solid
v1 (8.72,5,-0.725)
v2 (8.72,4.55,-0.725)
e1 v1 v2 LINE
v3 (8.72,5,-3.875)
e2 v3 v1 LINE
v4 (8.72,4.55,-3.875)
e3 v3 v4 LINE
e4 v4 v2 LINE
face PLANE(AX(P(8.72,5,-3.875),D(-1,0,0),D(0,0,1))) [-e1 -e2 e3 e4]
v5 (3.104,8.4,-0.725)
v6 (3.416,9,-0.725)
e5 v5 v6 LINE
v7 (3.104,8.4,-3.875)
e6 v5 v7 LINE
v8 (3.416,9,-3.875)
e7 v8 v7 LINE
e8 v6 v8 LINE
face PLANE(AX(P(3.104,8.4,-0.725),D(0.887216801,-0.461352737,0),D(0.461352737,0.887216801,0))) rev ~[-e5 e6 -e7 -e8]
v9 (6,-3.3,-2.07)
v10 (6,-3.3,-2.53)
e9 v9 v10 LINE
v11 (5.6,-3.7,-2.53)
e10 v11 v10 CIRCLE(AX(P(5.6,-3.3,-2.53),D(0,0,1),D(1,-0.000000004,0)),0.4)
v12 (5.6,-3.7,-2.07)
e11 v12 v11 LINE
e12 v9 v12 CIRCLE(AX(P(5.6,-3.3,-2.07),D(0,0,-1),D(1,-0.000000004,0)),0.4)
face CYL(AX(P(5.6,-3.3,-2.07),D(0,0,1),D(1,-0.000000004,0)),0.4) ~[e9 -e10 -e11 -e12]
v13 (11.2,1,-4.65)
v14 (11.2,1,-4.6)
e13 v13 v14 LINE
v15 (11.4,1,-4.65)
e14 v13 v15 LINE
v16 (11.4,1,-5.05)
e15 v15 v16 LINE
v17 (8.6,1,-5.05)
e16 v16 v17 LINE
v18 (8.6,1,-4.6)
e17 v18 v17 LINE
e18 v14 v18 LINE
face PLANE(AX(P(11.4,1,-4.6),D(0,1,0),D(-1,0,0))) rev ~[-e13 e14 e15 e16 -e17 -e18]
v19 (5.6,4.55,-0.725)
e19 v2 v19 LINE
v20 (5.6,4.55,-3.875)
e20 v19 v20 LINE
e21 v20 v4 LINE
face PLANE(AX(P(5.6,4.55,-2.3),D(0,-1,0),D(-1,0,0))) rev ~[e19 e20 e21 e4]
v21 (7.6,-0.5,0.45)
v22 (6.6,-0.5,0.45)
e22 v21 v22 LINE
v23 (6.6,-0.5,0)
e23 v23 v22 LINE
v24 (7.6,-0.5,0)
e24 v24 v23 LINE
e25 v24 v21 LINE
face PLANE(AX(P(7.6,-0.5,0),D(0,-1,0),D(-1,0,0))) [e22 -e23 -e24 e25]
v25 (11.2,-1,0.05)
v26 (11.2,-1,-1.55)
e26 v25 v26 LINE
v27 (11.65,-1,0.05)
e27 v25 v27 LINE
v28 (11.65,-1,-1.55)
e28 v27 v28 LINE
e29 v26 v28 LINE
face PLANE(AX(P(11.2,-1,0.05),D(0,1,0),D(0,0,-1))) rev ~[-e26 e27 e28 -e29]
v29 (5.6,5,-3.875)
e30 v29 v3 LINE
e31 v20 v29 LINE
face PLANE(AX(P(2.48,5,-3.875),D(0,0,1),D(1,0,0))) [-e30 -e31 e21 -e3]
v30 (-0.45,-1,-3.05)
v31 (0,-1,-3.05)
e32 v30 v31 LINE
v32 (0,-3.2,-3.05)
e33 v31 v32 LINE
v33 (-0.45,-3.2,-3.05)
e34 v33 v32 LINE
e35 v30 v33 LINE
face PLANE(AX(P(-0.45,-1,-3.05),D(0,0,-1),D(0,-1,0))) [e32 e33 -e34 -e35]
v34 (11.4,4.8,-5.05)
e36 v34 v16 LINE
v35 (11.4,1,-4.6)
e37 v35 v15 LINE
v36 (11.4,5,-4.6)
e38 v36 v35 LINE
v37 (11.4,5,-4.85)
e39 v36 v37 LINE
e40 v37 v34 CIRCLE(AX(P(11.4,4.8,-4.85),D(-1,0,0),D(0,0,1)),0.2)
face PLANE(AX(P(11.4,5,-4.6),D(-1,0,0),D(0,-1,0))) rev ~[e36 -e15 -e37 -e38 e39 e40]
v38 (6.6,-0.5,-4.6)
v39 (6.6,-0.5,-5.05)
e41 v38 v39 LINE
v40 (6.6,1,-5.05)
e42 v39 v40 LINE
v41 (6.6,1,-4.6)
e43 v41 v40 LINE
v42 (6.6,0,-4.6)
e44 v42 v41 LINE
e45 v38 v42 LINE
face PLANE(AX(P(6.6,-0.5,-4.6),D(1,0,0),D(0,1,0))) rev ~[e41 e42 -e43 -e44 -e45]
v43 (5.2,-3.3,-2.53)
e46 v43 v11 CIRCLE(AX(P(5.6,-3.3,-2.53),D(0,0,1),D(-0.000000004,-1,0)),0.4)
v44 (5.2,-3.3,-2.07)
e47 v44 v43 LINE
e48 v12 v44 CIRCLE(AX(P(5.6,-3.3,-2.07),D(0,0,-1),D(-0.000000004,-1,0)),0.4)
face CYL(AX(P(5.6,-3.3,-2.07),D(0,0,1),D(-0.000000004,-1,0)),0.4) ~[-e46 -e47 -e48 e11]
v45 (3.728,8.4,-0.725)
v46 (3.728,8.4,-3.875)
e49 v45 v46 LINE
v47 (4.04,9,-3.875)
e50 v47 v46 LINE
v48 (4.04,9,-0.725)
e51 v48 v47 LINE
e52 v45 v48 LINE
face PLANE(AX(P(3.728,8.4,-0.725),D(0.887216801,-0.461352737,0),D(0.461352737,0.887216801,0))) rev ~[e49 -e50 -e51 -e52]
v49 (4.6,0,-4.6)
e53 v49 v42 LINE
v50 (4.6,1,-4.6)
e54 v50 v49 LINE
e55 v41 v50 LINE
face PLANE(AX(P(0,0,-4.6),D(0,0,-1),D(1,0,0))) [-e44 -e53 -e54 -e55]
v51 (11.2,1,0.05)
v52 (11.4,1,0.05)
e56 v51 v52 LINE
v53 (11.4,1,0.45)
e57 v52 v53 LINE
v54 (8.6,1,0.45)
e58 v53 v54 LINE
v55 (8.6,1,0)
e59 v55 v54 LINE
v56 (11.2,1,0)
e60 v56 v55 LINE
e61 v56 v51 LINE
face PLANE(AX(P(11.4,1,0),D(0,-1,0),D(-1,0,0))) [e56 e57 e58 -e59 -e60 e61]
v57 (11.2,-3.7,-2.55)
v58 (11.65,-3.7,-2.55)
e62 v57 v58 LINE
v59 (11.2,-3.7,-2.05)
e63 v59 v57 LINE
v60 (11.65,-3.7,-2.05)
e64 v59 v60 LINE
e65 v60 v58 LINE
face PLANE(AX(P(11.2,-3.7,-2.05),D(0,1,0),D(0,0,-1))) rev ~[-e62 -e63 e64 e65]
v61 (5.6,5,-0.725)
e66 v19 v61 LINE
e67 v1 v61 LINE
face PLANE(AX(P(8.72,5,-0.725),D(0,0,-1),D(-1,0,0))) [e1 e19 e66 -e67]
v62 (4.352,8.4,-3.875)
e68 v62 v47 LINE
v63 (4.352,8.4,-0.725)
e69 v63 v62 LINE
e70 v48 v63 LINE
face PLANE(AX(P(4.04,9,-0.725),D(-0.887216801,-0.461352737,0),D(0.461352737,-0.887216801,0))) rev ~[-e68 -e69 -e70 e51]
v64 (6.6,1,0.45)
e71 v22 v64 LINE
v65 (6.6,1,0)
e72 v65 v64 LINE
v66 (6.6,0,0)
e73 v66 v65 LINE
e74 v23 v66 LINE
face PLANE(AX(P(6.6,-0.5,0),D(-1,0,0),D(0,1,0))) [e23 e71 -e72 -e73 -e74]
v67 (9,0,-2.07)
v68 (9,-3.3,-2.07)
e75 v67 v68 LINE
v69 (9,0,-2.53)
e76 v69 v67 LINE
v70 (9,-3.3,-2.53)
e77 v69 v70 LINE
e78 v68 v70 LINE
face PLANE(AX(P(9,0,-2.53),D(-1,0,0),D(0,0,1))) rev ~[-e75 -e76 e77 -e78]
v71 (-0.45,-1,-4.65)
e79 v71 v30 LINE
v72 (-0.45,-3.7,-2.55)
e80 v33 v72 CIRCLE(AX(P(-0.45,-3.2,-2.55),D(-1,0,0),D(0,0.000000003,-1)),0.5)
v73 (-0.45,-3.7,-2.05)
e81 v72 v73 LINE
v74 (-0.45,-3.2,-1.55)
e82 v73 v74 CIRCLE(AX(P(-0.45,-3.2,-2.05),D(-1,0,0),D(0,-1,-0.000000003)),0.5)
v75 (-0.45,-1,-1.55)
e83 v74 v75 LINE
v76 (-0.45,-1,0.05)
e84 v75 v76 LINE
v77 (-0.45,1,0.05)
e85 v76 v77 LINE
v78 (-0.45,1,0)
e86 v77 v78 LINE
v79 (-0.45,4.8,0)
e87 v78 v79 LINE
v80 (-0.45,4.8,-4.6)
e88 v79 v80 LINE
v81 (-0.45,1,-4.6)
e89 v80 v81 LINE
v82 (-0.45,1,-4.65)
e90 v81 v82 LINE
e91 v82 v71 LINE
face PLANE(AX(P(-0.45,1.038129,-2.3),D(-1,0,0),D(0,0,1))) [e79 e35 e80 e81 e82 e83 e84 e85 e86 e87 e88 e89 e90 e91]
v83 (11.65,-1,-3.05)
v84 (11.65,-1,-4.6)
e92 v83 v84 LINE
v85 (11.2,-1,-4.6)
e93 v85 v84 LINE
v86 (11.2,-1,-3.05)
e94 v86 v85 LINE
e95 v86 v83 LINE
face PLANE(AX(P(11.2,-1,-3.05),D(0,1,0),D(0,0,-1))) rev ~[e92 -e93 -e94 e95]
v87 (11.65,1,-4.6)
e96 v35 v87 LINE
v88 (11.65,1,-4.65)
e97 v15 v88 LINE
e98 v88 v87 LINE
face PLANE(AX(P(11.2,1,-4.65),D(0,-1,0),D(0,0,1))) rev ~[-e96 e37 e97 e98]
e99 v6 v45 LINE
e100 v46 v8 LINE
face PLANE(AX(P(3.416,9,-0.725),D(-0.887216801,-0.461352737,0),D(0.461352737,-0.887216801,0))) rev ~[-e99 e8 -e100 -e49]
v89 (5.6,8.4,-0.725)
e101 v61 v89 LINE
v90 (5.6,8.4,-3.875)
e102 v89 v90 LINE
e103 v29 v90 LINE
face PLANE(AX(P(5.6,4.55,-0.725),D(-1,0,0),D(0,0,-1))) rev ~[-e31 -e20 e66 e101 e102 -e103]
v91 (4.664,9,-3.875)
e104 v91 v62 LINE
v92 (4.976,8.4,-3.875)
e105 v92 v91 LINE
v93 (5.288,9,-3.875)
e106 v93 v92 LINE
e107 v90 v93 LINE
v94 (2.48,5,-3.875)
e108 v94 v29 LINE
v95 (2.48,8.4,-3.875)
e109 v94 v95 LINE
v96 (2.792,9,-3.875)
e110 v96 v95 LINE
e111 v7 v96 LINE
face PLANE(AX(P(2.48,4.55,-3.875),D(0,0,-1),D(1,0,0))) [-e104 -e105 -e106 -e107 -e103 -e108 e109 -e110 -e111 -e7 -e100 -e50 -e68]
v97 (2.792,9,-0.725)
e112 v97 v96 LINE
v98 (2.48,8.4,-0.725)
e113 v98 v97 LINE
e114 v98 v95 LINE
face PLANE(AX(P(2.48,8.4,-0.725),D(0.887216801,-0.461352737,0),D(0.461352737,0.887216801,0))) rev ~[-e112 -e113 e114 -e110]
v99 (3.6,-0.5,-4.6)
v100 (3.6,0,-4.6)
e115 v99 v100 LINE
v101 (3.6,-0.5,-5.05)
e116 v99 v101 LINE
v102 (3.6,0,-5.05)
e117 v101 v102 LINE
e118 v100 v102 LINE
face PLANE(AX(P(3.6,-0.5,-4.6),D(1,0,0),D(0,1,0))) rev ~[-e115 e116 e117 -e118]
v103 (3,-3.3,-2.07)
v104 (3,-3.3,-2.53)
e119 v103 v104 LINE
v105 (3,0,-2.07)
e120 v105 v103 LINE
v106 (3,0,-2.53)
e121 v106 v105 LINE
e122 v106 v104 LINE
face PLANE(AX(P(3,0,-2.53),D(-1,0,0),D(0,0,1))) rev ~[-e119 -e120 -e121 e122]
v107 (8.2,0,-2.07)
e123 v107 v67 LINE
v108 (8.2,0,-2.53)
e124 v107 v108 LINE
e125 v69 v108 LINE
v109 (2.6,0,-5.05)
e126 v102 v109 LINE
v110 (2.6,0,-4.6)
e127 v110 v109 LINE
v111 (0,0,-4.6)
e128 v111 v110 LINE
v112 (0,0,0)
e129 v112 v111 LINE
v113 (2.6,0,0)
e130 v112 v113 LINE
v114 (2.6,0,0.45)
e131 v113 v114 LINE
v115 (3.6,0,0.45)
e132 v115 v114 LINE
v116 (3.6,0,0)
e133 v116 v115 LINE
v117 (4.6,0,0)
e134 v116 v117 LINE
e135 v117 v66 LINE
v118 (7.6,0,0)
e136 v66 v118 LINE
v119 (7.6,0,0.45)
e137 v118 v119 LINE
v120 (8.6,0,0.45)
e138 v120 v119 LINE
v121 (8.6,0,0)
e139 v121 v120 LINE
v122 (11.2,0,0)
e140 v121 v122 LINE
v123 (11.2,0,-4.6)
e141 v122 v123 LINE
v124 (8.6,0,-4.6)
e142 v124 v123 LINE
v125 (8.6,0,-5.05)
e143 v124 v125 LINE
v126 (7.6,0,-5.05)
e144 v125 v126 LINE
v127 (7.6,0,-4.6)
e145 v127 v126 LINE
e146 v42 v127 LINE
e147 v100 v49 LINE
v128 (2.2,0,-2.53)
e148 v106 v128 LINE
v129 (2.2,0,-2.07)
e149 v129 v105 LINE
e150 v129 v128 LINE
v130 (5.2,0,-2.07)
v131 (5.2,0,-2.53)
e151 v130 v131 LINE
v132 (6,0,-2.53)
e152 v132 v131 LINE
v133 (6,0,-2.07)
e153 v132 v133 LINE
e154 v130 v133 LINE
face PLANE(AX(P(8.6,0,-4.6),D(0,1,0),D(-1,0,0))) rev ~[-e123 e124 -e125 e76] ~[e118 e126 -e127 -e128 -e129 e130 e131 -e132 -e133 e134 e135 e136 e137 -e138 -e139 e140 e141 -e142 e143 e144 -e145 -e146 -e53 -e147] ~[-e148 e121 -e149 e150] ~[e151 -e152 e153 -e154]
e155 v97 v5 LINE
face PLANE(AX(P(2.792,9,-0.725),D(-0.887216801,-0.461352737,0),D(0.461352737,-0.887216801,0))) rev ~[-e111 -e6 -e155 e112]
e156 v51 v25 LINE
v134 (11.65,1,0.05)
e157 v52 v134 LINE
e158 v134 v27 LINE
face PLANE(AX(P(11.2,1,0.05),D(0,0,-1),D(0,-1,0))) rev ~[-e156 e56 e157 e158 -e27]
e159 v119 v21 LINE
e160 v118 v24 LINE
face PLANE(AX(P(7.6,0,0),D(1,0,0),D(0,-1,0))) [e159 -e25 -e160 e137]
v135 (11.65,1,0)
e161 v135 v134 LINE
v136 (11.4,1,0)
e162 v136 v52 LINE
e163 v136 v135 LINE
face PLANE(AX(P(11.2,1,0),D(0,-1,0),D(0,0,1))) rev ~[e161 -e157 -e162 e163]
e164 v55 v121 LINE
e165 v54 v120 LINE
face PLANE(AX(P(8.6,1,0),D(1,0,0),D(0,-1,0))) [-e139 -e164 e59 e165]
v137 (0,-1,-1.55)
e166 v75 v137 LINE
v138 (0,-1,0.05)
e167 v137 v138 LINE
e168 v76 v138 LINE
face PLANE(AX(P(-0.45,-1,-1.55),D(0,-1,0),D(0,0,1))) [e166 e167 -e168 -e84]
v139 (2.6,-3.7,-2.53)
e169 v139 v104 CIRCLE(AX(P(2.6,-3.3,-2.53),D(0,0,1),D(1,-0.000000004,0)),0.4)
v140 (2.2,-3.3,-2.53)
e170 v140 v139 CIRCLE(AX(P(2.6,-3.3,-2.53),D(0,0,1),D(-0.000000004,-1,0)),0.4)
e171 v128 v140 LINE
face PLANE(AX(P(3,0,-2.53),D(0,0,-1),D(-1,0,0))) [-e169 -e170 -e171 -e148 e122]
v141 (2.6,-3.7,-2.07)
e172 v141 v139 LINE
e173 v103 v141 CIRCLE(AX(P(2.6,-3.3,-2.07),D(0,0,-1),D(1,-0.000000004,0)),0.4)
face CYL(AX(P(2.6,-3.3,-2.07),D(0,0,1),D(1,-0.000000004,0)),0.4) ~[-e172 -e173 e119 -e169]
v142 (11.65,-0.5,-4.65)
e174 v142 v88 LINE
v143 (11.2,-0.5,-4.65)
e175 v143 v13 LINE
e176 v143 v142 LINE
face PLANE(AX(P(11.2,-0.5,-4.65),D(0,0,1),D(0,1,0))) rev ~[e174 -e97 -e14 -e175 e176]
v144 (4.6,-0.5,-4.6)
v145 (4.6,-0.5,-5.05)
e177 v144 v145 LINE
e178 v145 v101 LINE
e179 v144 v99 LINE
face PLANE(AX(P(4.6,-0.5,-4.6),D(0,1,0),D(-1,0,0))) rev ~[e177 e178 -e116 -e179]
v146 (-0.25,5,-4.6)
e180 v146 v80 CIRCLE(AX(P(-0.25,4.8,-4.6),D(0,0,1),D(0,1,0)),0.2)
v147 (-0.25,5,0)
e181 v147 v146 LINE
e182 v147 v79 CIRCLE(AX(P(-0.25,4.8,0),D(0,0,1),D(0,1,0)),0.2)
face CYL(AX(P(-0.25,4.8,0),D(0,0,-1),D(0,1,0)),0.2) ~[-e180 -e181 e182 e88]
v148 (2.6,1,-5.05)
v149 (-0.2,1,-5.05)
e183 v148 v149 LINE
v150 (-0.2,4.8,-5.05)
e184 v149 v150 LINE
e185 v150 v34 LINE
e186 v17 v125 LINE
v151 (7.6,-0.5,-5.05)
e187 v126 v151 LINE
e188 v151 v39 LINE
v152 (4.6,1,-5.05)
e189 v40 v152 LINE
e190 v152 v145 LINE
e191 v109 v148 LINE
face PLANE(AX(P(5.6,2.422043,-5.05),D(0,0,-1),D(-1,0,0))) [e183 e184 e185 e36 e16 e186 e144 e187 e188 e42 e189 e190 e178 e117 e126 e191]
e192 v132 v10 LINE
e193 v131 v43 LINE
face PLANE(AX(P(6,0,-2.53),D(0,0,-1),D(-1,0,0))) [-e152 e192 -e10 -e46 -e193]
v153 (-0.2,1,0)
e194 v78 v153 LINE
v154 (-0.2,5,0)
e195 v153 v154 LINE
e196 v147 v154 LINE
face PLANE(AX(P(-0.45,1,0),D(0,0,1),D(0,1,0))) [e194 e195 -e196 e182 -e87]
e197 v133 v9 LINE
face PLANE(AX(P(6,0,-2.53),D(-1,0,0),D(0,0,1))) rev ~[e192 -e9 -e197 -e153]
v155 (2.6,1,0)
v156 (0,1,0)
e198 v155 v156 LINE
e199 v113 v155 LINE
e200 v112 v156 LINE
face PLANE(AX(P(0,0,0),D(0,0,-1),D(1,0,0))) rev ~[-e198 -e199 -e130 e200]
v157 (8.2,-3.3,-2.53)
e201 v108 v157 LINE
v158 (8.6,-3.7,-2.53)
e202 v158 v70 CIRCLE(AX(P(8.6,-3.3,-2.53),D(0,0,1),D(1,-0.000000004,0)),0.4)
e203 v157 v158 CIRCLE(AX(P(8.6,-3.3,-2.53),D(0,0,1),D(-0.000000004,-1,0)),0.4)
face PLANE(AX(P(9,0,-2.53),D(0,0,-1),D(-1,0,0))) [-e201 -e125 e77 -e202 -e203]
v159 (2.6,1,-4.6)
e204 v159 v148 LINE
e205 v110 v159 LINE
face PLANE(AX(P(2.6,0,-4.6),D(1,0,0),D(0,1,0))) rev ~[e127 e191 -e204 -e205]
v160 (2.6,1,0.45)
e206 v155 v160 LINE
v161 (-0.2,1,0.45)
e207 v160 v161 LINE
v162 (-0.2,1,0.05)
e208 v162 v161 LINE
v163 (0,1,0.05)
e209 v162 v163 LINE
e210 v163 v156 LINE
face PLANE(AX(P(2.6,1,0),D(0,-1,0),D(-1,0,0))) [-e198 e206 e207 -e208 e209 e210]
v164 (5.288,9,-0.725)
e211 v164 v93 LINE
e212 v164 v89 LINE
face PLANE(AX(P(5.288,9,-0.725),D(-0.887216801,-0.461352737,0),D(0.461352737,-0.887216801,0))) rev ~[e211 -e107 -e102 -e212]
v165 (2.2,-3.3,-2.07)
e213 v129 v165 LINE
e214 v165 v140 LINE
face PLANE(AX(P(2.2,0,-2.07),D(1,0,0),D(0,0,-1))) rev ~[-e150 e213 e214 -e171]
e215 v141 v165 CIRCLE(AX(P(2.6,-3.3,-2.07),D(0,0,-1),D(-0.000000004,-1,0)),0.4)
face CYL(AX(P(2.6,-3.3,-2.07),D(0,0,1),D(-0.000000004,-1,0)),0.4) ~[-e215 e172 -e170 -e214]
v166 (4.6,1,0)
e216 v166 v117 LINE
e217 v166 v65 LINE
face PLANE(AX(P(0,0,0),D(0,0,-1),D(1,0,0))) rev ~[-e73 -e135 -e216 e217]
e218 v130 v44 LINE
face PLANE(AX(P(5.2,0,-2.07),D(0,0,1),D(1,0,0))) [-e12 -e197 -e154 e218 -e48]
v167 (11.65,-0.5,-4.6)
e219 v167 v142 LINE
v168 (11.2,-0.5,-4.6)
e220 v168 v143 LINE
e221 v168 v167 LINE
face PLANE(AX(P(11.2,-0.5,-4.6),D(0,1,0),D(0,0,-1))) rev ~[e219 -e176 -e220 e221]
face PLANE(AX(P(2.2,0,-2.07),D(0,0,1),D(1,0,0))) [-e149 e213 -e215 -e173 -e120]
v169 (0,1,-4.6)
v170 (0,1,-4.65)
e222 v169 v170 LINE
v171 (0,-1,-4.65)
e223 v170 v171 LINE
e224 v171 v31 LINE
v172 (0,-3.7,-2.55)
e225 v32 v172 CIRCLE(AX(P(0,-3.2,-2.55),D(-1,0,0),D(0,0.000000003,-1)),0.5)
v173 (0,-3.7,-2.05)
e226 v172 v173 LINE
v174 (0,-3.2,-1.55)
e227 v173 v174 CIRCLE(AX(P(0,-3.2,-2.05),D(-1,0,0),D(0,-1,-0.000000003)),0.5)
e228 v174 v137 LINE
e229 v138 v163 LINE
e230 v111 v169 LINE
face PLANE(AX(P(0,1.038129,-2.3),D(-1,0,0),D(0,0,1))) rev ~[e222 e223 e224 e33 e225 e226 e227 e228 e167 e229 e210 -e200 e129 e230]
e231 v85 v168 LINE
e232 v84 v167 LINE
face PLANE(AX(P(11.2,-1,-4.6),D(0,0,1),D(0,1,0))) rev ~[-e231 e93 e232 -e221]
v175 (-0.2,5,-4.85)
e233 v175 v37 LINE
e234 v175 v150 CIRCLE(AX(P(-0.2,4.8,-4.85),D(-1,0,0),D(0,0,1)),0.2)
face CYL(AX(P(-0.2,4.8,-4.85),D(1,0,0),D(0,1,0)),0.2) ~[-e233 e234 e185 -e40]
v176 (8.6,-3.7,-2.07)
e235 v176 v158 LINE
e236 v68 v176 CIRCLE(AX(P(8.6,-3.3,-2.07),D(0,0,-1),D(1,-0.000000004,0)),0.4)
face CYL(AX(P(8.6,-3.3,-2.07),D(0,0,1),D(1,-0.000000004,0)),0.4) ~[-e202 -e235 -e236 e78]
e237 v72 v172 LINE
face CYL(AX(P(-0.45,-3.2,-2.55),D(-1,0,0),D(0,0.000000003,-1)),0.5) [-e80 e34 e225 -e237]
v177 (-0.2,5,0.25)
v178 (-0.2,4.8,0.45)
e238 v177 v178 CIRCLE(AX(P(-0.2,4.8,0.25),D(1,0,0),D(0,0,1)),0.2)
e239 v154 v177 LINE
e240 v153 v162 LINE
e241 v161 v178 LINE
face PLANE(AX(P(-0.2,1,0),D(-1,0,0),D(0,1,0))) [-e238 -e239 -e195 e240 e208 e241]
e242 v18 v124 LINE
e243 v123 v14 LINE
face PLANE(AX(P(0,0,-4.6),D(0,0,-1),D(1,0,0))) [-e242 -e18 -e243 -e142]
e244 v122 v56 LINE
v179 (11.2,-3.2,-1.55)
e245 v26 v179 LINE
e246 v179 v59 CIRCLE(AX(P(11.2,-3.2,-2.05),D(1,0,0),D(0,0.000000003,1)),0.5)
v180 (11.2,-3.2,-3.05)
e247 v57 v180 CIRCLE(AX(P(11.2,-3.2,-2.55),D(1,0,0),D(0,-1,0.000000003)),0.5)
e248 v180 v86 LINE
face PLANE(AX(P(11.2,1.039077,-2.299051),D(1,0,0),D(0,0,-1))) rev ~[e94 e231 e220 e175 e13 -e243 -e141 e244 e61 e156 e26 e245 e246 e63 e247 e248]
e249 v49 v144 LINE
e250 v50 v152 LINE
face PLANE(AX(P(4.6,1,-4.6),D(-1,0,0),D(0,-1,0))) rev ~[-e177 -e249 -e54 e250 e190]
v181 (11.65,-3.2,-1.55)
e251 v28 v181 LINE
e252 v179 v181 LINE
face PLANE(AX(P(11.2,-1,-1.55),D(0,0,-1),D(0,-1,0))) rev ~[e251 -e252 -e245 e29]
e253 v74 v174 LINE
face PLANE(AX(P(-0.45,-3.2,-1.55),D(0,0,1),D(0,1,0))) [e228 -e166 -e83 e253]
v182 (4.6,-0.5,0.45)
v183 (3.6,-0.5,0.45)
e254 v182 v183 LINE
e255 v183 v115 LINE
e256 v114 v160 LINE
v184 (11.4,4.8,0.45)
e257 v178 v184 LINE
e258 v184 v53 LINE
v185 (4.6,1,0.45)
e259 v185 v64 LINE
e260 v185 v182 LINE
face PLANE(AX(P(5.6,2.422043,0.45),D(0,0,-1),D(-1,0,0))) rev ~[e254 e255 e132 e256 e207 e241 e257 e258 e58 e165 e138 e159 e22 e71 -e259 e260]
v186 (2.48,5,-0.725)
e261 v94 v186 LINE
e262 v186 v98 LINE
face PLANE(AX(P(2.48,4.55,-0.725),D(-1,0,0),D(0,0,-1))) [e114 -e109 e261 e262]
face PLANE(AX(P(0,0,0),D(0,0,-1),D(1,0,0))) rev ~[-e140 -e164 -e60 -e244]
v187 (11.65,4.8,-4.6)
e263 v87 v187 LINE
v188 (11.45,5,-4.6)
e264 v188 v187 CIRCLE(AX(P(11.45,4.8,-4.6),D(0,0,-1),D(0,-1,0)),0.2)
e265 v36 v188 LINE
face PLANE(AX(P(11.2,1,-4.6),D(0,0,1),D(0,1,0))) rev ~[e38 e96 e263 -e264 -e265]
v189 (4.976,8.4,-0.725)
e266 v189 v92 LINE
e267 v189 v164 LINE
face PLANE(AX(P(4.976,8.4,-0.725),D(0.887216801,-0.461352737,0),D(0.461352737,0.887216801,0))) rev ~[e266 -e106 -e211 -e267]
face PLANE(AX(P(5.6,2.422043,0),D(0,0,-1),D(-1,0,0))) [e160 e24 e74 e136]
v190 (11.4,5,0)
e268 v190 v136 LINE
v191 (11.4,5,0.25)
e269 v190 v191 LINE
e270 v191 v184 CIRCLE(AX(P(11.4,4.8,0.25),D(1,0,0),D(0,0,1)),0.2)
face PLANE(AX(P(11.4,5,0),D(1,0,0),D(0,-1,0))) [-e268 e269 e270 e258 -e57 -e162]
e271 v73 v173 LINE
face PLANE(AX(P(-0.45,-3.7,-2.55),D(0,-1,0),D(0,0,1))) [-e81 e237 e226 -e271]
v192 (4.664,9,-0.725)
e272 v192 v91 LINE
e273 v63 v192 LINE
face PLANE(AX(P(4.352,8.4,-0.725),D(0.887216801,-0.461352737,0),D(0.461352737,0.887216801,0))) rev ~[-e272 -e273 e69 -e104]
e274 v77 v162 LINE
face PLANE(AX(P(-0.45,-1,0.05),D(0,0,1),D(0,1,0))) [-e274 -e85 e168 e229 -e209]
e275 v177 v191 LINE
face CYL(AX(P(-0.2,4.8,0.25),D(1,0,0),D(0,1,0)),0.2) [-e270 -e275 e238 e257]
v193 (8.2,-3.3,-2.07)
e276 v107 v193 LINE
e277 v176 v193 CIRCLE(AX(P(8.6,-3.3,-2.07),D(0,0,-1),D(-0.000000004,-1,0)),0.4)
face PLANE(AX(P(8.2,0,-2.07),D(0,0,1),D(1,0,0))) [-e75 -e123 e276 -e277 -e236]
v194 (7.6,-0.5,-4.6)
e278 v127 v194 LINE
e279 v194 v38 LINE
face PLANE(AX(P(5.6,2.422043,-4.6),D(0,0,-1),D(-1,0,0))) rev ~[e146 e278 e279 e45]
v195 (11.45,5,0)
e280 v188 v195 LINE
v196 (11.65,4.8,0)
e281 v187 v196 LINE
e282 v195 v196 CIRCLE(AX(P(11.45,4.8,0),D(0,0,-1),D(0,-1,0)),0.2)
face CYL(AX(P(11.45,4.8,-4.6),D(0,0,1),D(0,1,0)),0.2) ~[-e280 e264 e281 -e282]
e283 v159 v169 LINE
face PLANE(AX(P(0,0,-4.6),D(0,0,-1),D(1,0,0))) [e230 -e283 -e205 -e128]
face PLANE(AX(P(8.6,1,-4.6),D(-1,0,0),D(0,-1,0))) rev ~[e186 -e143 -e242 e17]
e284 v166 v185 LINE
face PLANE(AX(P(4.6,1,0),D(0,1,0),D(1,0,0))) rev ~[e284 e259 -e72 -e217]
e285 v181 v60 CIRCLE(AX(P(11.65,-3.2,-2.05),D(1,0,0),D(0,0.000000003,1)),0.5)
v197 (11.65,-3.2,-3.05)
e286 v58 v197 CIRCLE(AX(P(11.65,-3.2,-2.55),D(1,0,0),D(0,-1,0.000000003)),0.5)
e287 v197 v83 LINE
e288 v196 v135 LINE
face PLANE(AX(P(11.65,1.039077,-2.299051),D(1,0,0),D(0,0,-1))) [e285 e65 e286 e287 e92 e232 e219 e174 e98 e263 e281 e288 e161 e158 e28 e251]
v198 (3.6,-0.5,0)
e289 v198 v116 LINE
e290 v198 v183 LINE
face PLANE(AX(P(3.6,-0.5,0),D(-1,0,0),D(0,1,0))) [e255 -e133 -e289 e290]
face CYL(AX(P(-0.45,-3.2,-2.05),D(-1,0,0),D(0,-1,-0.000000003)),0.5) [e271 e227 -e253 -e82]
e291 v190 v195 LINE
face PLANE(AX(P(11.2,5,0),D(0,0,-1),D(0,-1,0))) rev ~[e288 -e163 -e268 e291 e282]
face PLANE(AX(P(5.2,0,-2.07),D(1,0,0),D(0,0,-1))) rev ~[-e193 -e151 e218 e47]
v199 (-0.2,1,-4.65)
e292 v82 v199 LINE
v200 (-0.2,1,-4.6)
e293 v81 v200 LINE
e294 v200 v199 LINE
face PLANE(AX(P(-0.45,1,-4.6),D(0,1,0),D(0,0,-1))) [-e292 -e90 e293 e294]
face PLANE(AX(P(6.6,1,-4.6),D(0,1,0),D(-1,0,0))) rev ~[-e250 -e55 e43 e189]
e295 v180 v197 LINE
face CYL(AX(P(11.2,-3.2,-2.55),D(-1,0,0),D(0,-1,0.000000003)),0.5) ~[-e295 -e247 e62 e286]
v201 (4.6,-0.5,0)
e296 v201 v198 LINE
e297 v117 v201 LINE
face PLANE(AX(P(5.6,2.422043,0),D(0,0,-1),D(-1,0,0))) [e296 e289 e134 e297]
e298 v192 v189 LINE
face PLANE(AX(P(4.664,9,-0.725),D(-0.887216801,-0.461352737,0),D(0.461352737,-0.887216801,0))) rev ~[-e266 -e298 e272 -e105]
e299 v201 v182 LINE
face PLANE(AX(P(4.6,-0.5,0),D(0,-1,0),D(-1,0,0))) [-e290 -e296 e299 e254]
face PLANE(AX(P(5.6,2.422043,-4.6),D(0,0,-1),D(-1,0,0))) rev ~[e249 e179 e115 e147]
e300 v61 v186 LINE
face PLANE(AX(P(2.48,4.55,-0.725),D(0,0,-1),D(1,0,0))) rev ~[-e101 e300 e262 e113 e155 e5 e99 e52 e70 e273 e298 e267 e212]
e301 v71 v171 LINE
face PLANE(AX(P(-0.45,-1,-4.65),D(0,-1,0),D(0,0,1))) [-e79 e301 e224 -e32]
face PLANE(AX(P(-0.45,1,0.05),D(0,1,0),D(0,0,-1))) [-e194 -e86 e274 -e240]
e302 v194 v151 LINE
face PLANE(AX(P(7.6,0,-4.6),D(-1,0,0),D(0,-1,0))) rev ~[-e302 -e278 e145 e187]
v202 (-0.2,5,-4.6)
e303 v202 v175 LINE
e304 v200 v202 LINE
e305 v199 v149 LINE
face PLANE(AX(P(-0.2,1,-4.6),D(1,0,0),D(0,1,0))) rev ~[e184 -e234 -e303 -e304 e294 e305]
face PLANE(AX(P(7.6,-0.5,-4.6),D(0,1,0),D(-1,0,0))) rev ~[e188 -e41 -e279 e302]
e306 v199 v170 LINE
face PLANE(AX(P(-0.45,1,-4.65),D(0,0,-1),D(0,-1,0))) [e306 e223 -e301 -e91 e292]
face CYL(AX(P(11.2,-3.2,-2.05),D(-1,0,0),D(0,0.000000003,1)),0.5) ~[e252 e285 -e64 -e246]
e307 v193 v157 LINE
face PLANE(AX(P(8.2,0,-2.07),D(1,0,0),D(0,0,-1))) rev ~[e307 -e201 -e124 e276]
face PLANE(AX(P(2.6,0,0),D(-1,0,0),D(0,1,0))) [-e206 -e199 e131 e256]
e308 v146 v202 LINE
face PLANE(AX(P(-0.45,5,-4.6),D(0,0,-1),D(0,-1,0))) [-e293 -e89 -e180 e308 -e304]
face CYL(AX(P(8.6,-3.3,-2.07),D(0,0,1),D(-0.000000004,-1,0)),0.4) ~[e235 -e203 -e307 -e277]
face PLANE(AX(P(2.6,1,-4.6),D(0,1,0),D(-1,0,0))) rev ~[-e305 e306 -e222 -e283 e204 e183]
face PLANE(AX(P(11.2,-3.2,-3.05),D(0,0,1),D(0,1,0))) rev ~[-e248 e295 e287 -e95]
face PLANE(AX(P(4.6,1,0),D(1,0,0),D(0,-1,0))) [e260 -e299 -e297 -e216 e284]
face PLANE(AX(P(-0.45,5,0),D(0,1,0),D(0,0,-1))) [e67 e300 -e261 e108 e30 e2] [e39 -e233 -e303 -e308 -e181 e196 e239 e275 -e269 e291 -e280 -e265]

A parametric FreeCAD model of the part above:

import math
import FreeCAD as App
import Part
import Sketcher
Q = App.Units.Quantity


def edges_at(feature, points):
    """Names of the edges that pass closest to the given points."""
    edges = feature.Shape.Edges
    near = lambda p: min(range(len(edges)), key=lambda i: edges[i].distToShape(Part.Vertex(*p))[0])
    return sorted({f"Edge{near(p) + 1}" for p in points})


def add_polygon(sketch, points):
    """Adds a closed chain of lines whose ends are joined by coincident constraints."""
    first, n = sketch.GeometryCount, len(points)
    for a, b in zip(points, points[1:] + points[:1]):
        sketch.addGeometry(Part.LineSegment(App.Vector(*a, 0), App.Vector(*b, 0)), False)
    for i in range(n):
        sketch.addConstraint(Sketcher.Constraint("Coincident", first + i, 2, first + (i + 1) % n, 1))

doc = App.newDocument("Part")
params = doc.addObject("Spreadsheet::Sheet", "Params")
for row, (alias, value) in enumerate([
    ("sketch1_width", "11.2 mm"),
    ("sketch1_height", "4.6 mm"),
    ("pad1_length", "5 mm"),
    ("sketch2_width", "1 mm"),
    ("sketch2_width2", "2 mm"),
    ("sketch2_height", "4 mm"),
    ("sketch2_width3", "11.6 mm"),
    ("sketch2_height2", "0.5 mm"),
    ("pad2_length", "0.45 mm"),
    ("sketch3_width", "1 mm"),
    ("sketch3_width2", "2 mm"),
    ("sketch3_height", "4 mm"),
    ("sketch3_width3", "2.8 mm"),
    ("sketch3_height2", "0.5 mm"),
    ("pad3_length", "0.45 mm"),
    ("sketch4_radius", "0.5 mm"),
    ("sketch4_width", "4 mm"),
    ("sketch4_width2", "2 mm"),
    ("sketch4_width3", "2.2 mm"),
    ("sketch4_width4", "0.5 mm"),
    ("pad4_length", "0.45 mm"),
    ("sketch5_radius", "0.5 mm"),
    ("sketch5_width", "4 mm"),
    ("sketch5_width2", "2 mm"),
    ("sketch5_width3", "2.2 mm"),
    ("sketch5_height", "1.6 mm"),
    ("pad5_length", "0.45 mm"),
    ("sketch6_width", "6.24 mm"),
    ("sketch6_height", "3.15 mm"),
    ("pocket1_length", "0.45 mm"),
    ("sketch7_width", "3.12 mm"),
    ("sketch7_height", "3.15 mm"),
    ("pad6_length", "4.45 mm"),
    ("sketch8_height", "0.6 mm"),
    ("pocket2_length", "4.45 mm"),
    ("sketch9_width", "0.8 mm"),
    ("sketch9_height", "0.46 mm"),
    ("pad7_length", "3.7 mm"),
    ("sketch10_radius", "0.4 mm"),
    ("sketch10_width", "3 mm"),
    ("pocket3_length", "3.7 mm"),
    ("fillet_radius", "0.2 mm"),
    ("fillet2_radius", "0.2 mm"),
    ("fillet3_radius", "0.2 mm"),
    ("fillet4_radius", "0.2 mm"),
], start=1):
    params.set(f"A{row}", alias)
    params.set(f"B{row}", "=" + value)
    params.setAlias(f"B{row}", alias)

body = doc.addObject("PartDesign::Body", "Body")

# Sketch on XZ plane
sketch1 = body.newObject("Sketcher::SketchObject", "Sketch")
sketch1.AttachmentSupport = (doc.getObject("XZ_Plane"), [""])
sketch1.MapMode = "FlatFace"
add_polygon(sketch1, [(0, -4.6), (0, 0), (11.2, 0), (11.2, -4.6)])  # lines 0-3
sketch1.addConstraint([
    Sketcher.Constraint("Vertical", 0),
    Sketcher.Constraint("Horizontal", 1),
    Sketcher.Constraint("Vertical", 2),
    Sketcher.Constraint("Horizontal", 3),
    Sketcher.Constraint("Coincident", 0, 2, -1, 1),
    Sketcher.Constraint("DistanceX", 1, 1, 1, 2, Q("11.2 mm")),
    Sketcher.Constraint("DistanceY", 0, 1, 0, 2, Q("4.6 mm")),
])
sketch1.setExpression("Constraints[9]", "Params.sketch1_width")
sketch1.setExpression("Constraints[10]", "Params.sketch1_height")
pad1 = body.newObject("PartDesign::Pad", "Pad")
pad1.Profile = sketch1
pad1.setExpression("Length", "Params.pad1_length")
pad1.Reversed = True

# Sketch on XY plane
sketch2 = body.newObject("Sketcher::SketchObject", "Sketch001")
sketch2.AttachmentSupport = (doc.getObject("XY_Plane"), [""])
sketch2.MapMode = "FlatFace"
add_polygon(sketch2, [(11.4, 1), (11.4, 5), (-0.2, 5), (-0.2, 1), (2.6, 1), (2.6, 0), (3.6, 0), (3.6, -0.5), (4.6, -0.5), (4.6, 1), (6.6, 1), (6.6, -0.5), (7.6, -0.5), (7.6, 0), (8.6, 0), (8.6, 1)])  # lines 0-15
sketch2.addConstraint([
    Sketcher.Constraint("Vertical", 0),
    Sketcher.Constraint("Horizontal", 1),
    Sketcher.Constraint("Vertical", 2),
    Sketcher.Constraint("Horizontal", 3),
    Sketcher.Constraint("Vertical", 4),
    Sketcher.Constraint("Horizontal", 5),
    Sketcher.Constraint("Vertical", 6),
    Sketcher.Constraint("Horizontal", 7),
    Sketcher.Constraint("Vertical", 8),
    Sketcher.Constraint("Horizontal", 9),
    Sketcher.Constraint("Vertical", 10),
    Sketcher.Constraint("Horizontal", 11),
    Sketcher.Constraint("Vertical", 12),
    Sketcher.Constraint("Horizontal", 13),
    Sketcher.Constraint("Vertical", 14),
    Sketcher.Constraint("Horizontal", 15),
    Sketcher.Constraint("PointOnObject", 4, 2, -1),
    Sketcher.Constraint("PointOnObject", 12, 2, -1),
    Sketcher.Constraint("Horizontal", 3, 2, 8, 2),
    Sketcher.Constraint("Horizontal", 7, 2, 10, 2),
    Sketcher.Constraint("Horizontal", 9, 2, 14, 2),
    Sketcher.Constraint("Equal", 5, 7),
    Sketcher.Constraint("Equal", 7, 11),
    Sketcher.Constraint("Equal", 11, 13),
    Sketcher.Constraint("Equal", 3, 15),
    Sketcher.Constraint("Equal", 13, 4),
    Sketcher.Constraint("DistanceX", 5, 1, 5, 2, Q("1 mm")),
    Sketcher.Constraint("DistanceX", 9, 1, 9, 2, Q("2 mm")),
    Sketcher.Constraint("DistanceY", 0, 1, 0, 2, Q("4 mm")),
    Sketcher.Constraint("DistanceX", 1, 2, 1, 1, Q("11.6 mm")),
    Sketcher.Constraint("DistanceY", 6, 2, 6, 1, Q("0.5 mm")),
    Sketcher.Constraint("DistanceX", -1, 1, 0, 2, Q("11.4 mm")),
])
sketch2.setExpression("Constraints[42]", "Params.sketch2_width")
sketch2.setExpression("Constraints[43]", "Params.sketch2_width2")
sketch2.setExpression("Constraints[44]", "Params.sketch2_height")
sketch2.setExpression("Constraints[45]", "Params.sketch2_width3")
sketch2.setExpression("Constraints[46]", "Params.sketch2_height2")
pad2 = body.newObject("PartDesign::Pad", "Pad001")
pad2.Profile = sketch2
pad2.setExpression("Length", "Params.pad2_length")

# Sketch on XY plane
sketch3 = body.newObject("Sketcher::SketchObject", "Sketch002")
sketch3.AttachmentSupport = (doc.getObject("XY_Plane"), [""])
sketch3.MapMode = "FlatFace"
sketch3.AttachmentOffset = App.Placement(App.Vector(0, 0, -4.6), App.Rotation())
add_polygon(sketch3, [(11.4, 5), (11.4, 1), (8.6, 1), (8.6, 0), (7.6, 0), (7.6, -0.5), (6.6, -0.5), (6.6, 1), (4.6, 1), (4.6, -0.5), (3.6, -0.5), (3.6, 0), (2.6, 0), (2.6, 1), (-0.2, 1), (-0.2, 5)])  # lines 0-15
sketch3.addConstraint([
    Sketcher.Constraint("Vertical", 0),
    Sketcher.Constraint("Horizontal", 1),
    Sketcher.Constraint("Vertical", 2),
    Sketcher.Constraint("Horizontal", 3),
    Sketcher.Constraint("Vertical", 4),
    Sketcher.Constraint("Horizontal", 5),
    Sketcher.Constraint("Vertical", 6),
    Sketcher.Constraint("Horizontal", 7),
    Sketcher.Constraint("Vertical", 8),
    Sketcher.Constraint("Horizontal", 9),
    Sketcher.Constraint("Vertical", 10),
    Sketcher.Constraint("Horizontal", 11),
    Sketcher.Constraint("Vertical", 12),
    Sketcher.Constraint("Horizontal", 13),
    Sketcher.Constraint("Vertical", 14),
    Sketcher.Constraint("Horizontal", 15),
    Sketcher.Constraint("PointOnObject", 2, 2, -1),
    Sketcher.Constraint("PointOnObject", 10, 2, -1),
    Sketcher.Constraint("Horizontal", 1, 2, 6, 2),
    Sketcher.Constraint("Horizontal", 5, 2, 8, 2),
    Sketcher.Constraint("Horizontal", 7, 2, 12, 2),
    Sketcher.Constraint("Equal", 3, 5),
    Sketcher.Constraint("Equal", 5, 9),
    Sketcher.Constraint("Equal", 9, 11),
    Sketcher.Constraint("Equal", 1, 13),
    Sketcher.Constraint("Equal", 11, 2),
    Sketcher.Constraint("DistanceX", 3, 2, 3, 1, Q("1 mm")),
    Sketcher.Constraint("DistanceX", 7, 2, 7, 1, Q("2 mm")),
    Sketcher.Constraint("DistanceY", 0, 2, 0, 1, Q("4 mm")),
    Sketcher.Constraint("DistanceX", 1, 2, 1, 1, Q("2.8 mm")),
    Sketcher.Constraint("DistanceY", 4, 2, 4, 1, Q("0.5 mm")),
    Sketcher.Constraint("DistanceX", -1, 1, 0, 2, Q("11.4 mm")),
])
sketch3.setExpression("Constraints[42]", "Params.sketch3_width")
sketch3.setExpression("Constraints[43]", "Params.sketch3_width2")
sketch3.setExpression("Constraints[44]", "Params.sketch3_height")
sketch3.setExpression("Constraints[45]", "Params.sketch3_width3")
sketch3.setExpression("Constraints[46]", "Params.sketch3_height2")
pad3 = body.newObject("PartDesign::Pad", "Pad002")
pad3.Profile = sketch3
pad3.setExpression("Length", "Params.pad3_length")
pad3.Reversed = True

# Sketch on YZ plane
sketch4 = body.newObject("Sketcher::SketchObject", "Sketch003")
sketch4.AttachmentSupport = (doc.getObject("YZ_Plane"), [""])
sketch4.MapMode = "FlatFace"
sketch4.AttachmentOffset = App.Placement(App.Vector(0, 0, 11.2), App.Rotation())
sketch4.addGeometry([
    Part.LineSegment(App.Vector(5, 0, 0), App.Vector(1, 0, 0)),  # 0
    Part.LineSegment(App.Vector(1, 0, 0), App.Vector(1, 0.05, 0)),  # 1
    Part.LineSegment(App.Vector(1, 0.05, 0), App.Vector(-1, 0.05, 0)),  # 2
    Part.LineSegment(App.Vector(-1, 0.05, 0), App.Vector(-1, -1.55, 0)),  # 3
    Part.LineSegment(App.Vector(-1, -1.55, 0), App.Vector(-3.2, -1.55, 0)),  # 4
    Part.ArcOfCircle(Part.Circle(App.Vector(-3.2, -2.05, 0), App.Vector(0, 0, 1), 0.5), math.radians(90), math.radians(180)),  # 5
    Part.LineSegment(App.Vector(-3.7, -2.05, 0), App.Vector(-3.7, -2.55, 0)),  # 6
    Part.ArcOfCircle(Part.Circle(App.Vector(-3.2, -2.55, 0), App.Vector(0, 0, 1), 0.5), math.radians(180), math.radians(270)),  # 7
    Part.LineSegment(App.Vector(-3.2, -3.05, 0), App.Vector(-1, -3.05, 0)),  # 8
    Part.LineSegment(App.Vector(-1, -3.05, 0), App.Vector(-1, -4.6, 0)),  # 9
    Part.LineSegment(App.Vector(-1, -4.6, 0), App.Vector(-0.5, -4.6, 0)),  # 10
    Part.LineSegment(App.Vector(-0.5, -4.6, 0), App.Vector(-0.5, -4.65, 0)),  # 11
    Part.LineSegment(App.Vector(-0.5, -4.65, 0), App.Vector(1, -4.65, 0)),  # 12
    Part.LineSegment(App.Vector(1, -4.65, 0), App.Vector(1, -4.6, 0)),  # 13
    Part.LineSegment(App.Vector(1, -4.6, 0), App.Vector(5, -4.6, 0)),  # 14
    Part.LineSegment(App.Vector(5, -4.6, 0), App.Vector(5, 0, 0)),  # 15
], False)
sketch4.addConstraint([
    Sketcher.Constraint("Coincident", 0, 2, 1, 1),
    Sketcher.Constraint("Coincident", 1, 2, 2, 1),
    Sketcher.Constraint("Coincident", 2, 2, 3, 1),
    Sketcher.Constraint("Coincident", 3, 2, 4, 1),
    Sketcher.Constraint("Tangent", 4, 2, 5, 1),
    Sketcher.Constraint("Tangent", 5, 2, 6, 1),
    Sketcher.Constraint("Tangent", 6, 2, 7, 1),
    Sketcher.Constraint("Tangent", 7, 2, 8, 1),
    Sketcher.Constraint("Coincident", 8, 2, 9, 1),
    Sketcher.Constraint("Coincident", 9, 2, 10, 1),
    Sketcher.Constraint("Coincident", 10, 2, 11, 1),
    Sketcher.Constraint("Coincident", 11, 2, 12, 1),
    Sketcher.Constraint("Coincident", 12, 2, 13, 1),
    Sketcher.Constraint("Coincident", 13, 2, 14, 1),
    Sketcher.Constraint("Coincident", 14, 2, 15, 1),
    Sketcher.Constraint("Coincident", 15, 2, 0, 1),
    Sketcher.Constraint("Horizontal", 0),
    Sketcher.Constraint("Vertical", 1),
    Sketcher.Constraint("Horizontal", 2),
    Sketcher.Constraint("Vertical", 3),
    Sketcher.Constraint("Horizontal", 4),
    Sketcher.Constraint("Vertical", 6),
    Sketcher.Constraint("Horizontal", 8),
    Sketcher.Constraint("Vertical", 9),
    Sketcher.Constraint("Horizontal", 10),
    Sketcher.Constraint("Vertical", 11),
    Sketcher.Constraint("Horizontal", 12),
    Sketcher.Constraint("Vertical", 13),
    Sketcher.Constraint("Horizontal", 14),
    Sketcher.Constraint("Vertical", 15),
    Sketcher.Constraint("Equal", 5, 7),
    Sketcher.Constraint("Symmetric", 9, 2, 13, 2, -2),
    Sketcher.Constraint("PointOnObject", 0, 2, -1),
    Sketcher.Constraint("Vertical", 3, 2, 8, 2),
    Sketcher.Constraint("Vertical", 1, 2, 12, 2),
    Sketcher.Constraint("Equal", 10, 6),
    Sketcher.Constraint("Equal", 1, 11),
    Sketcher.Constraint("Radius", 5, Q("0.5 mm")),
    Sketcher.Constraint("DistanceX", 0, 2, 0, 1, Q("4 mm")),
    Sketcher.Constraint("DistanceX", 2, 2, 2, 1, Q("2 mm")),
    Sketcher.Constraint("DistanceX", 4, 2, 4, 1, Q("2.2 mm")),
    Sketcher.Constraint("DistanceX", 10, 1, 10, 2, Q("0.5 mm")),
    Sketcher.Constraint("DistanceY", 3, 2, 3, 1, Q("1.6 mm")),
    Sketcher.Constraint("DistanceY", 15, 1, 15, 2, Q("4.6 mm")),
    Sketcher.Constraint("DistanceY", 1, 1, 1, 2, Q("0.05 mm")),
])
sketch4.setExpression("Constraints[37]", "Params.sketch4_radius")
sketch4.setExpression("Constraints[38]", "Params.sketch4_width")
sketch4.setExpression("Constraints[39]", "Params.sketch4_width2")
sketch4.setExpression("Constraints[40]", "Params.sketch4_width3")
sketch4.setExpression("Constraints[41]", "Params.sketch4_width4")
pad4 = body.newObject("PartDesign::Pad", "Pad003")
pad4.Profile = sketch4
pad4.setExpression("Length", "Params.pad4_length")

# Sketch on YZ plane
sketch5 = body.newObject("Sketcher::SketchObject", "Sketch004")
sketch5.AttachmentSupport = (doc.getObject("YZ_Plane"), [""])
sketch5.MapMode = "FlatFace"
sketch5.AttachmentOffset = App.Placement(App.Vector(0, 0, -0.45), App.Rotation())
sketch5.addGeometry([
    Part.LineSegment(App.Vector(5, -4.6, 0), App.Vector(1, -4.6, 0)),  # 0
    Part.LineSegment(App.Vector(1, -4.6, 0), App.Vector(1, -4.65, 0)),  # 1
    Part.LineSegment(App.Vector(1, -4.65, 0), App.Vector(-1, -4.65, 0)),  # 2
    Part.LineSegment(App.Vector(-1, -4.65, 0), App.Vector(-1, -3.05, 0)),  # 3
    Part.LineSegment(App.Vector(-1, -3.05, 0), App.Vector(-3.2, -3.05, 0)),  # 4
    Part.ArcOfCircle(Part.Circle(App.Vector(-3.2, -2.55, 0), App.Vector(0, 0, 1), 0.5), math.radians(180), math.radians(270)),  # 5
    Part.LineSegment(App.Vector(-3.7, -2.55, 0), App.Vector(-3.7, -2.05, 0)),  # 6
    Part.ArcOfCircle(Part.Circle(App.Vector(-3.2, -2.05, 0), App.Vector(0, 0, 1), 0.5), math.radians(90), math.radians(180)),  # 7
    Part.LineSegment(App.Vector(-3.2, -1.55, 0), App.Vector(-1, -1.55, 0)),  # 8
    Part.LineSegment(App.Vector(-1, -1.55, 0), App.Vector(-1, 0.05, 0)),  # 9
    Part.LineSegment(App.Vector(-1, 0.05, 0), App.Vector(1, 0.05, 0)),  # 10
    Part.LineSegment(App.Vector(1, 0.05, 0), App.Vector(1, 0, 0)),  # 11
    Part.LineSegment(App.Vector(1, 0, 0), App.Vector(5, 0, 0)),  # 12
    Part.LineSegment(App.Vector(5, 0, 0), App.Vector(5, -4.6, 0)),  # 13
], False)
sketch5.addConstraint([
    Sketcher.Constraint("Coincident", 0, 2, 1, 1),
    Sketcher.Constraint("Coincident", 1, 2, 2, 1),
    Sketcher.Constraint("Coincident", 2, 2, 3, 1),
    Sketcher.Constraint("Coincident", 3, 2, 4, 1),
    Sketcher.Constraint("Tangent", 4, 2, 5, 2),
    Sketcher.Constraint("Tangent", 5, 1, 6, 1),
    Sketcher.Constraint("Tangent", 6, 2, 7, 2),
    Sketcher.Constraint("Tangent", 7, 1, 8, 1),
    Sketcher.Constraint("Coincident", 8, 2, 9, 1),
    Sketcher.Constraint("Coincident", 9, 2, 10, 1),
    Sketcher.Constraint("Coincident", 10, 2, 11, 1),
    Sketcher.Constraint("Coincident", 11, 2, 12, 1),
    Sketcher.Constraint("Coincident", 12, 2, 13, 1),
    Sketcher.Constraint("Coincident", 13, 2, 0, 1),
    Sketcher.Constraint("Horizontal", 0),
    Sketcher.Constraint("Vertical", 1),
    Sketcher.Constraint("Horizontal", 2),
    Sketcher.Constraint("Vertical", 3),
    Sketcher.Constraint("Horizontal", 4),
    Sketcher.Constraint("Vertical", 6),
    Sketcher.Constraint("Horizontal", 8),
    Sketcher.Constraint("Vertical", 9),
    Sketcher.Constraint("Horizontal", 10),
    Sketcher.Constraint("Vertical", 11),
    Sketcher.Constraint("Horizontal", 12),
    Sketcher.Constraint("Vertical", 13),
    Sketcher.Constraint("Equal", 5, 7),
    Sketcher.Constraint("PointOnObject", 11, 2, -1),
    Sketcher.Constraint("Vertical", 3, 2, 8, 2),
    Sketcher.Constraint("Vertical", 1, 2, 10, 2),
    Sketcher.Constraint("Equal", 3, 9),
    Sketcher.Constraint("Equal", 1, 11),
    Sketcher.Constraint("Radius", 5, Q("0.5 mm")),
    Sketcher.Constraint("DistanceX", 0, 2, 0, 1, Q("4 mm")),
    Sketcher.Constraint("DistanceX", 2, 2, 2, 1, Q("2 mm")),
    Sketcher.Constraint("DistanceX", 4, 2, 4, 1, Q("2.2 mm")),
    Sketcher.Constraint("DistanceY", 3, 1, 3, 2, Q("1.6 mm")),
    Sketcher.Constraint("DistanceY", 6, 1, 6, 2, Q("0.5 mm")),
    Sketcher.Constraint("DistanceY", 13, 2, 13, 1, Q("4.6 mm")),
    Sketcher.Constraint("DistanceX", -1, 1, 0, 2, Q("1 mm")),
])
sketch5.setExpression("Constraints[32]", "Params.sketch5_radius")
sketch5.setExpression("Constraints[33]", "Params.sketch5_width")
sketch5.setExpression("Constraints[34]", "Params.sketch5_width2")
sketch5.setExpression("Constraints[35]", "Params.sketch5_width3")
sketch5.setExpression("Constraints[36]", "Params.sketch5_height")
pad5 = body.newObject("PartDesign::Pad", "Pad004")
pad5.Profile = sketch5
pad5.setExpression("Length", "Params.pad5_length")

# Sketch on XZ plane
sketch6 = body.newObject("Sketcher::SketchObject", "Sketch005")
sketch6.AttachmentSupport = (doc.getObject("XZ_Plane"), [""])
sketch6.MapMode = "FlatFace"
sketch6.AttachmentOffset = App.Placement(App.Vector(0, 0, -5), App.Rotation())
add_polygon(sketch6, [(2.48, -3.875), (2.48, -0.725), (8.72, -0.725), (8.72, -3.875)])  # lines 0-3
sketch6.addConstraint([
    Sketcher.Constraint("Vertical", 0),
    Sketcher.Constraint("Horizontal", 1),
    Sketcher.Constraint("Vertical", 2),
    Sketcher.Constraint("Horizontal", 3),
    Sketcher.Constraint("DistanceX", 1, 1, 1, 2, Q("6.24 mm")),
    Sketcher.Constraint("DistanceY", 0, 1, 0, 2, Q("3.15 mm")),
    Sketcher.Constraint("DistanceX", -1, 1, 0, 2, Q("2.48 mm")),
    Sketcher.Constraint("DistanceY", 0, 2, -1, 1, Q("0.725 mm")),
])
sketch6.setExpression("Constraints[8]", "Params.sketch6_width")
sketch6.setExpression("Constraints[9]", "Params.sketch6_height")
pocket1 = body.newObject("PartDesign::Pocket", "Pocket")
pocket1.Profile = sketch6
pocket1.setExpression("Length", "Params.pocket1_length")
pocket1.Reversed = True

# Sketch on XZ plane
sketch7 = body.newObject("Sketcher::SketchObject", "Sketch006")
sketch7.AttachmentSupport = (doc.getObject("XZ_Plane"), [""])
sketch7.MapMode = "FlatFace"
sketch7.AttachmentOffset = App.Placement(App.Vector(0, 0, -4.55), App.Rotation())
add_polygon(sketch7, [(2.48, -3.875), (2.48, -0.725), (5.6, -0.725), (5.6, -3.875)])  # lines 0-3
sketch7.addConstraint([
    Sketcher.Constraint("Vertical", 0),
    Sketcher.Constraint("Horizontal", 1),
    Sketcher.Constraint("Vertical", 2),
    Sketcher.Constraint("Horizontal", 3),
    Sketcher.Constraint("DistanceX", 1, 1, 1, 2, Q("3.12 mm")),
    Sketcher.Constraint("DistanceY", 0, 1, 0, 2, Q("3.15 mm")),
    Sketcher.Constraint("DistanceX", -1, 1, 1, 2, Q("5.6 mm")),
    Sketcher.Constraint("DistanceY", 0, 2, -1, 1, Q("0.725 mm")),
])
sketch7.setExpression("Constraints[8]", "Params.sketch7_width")
sketch7.setExpression("Constraints[9]", "Params.sketch7_height")
pad6 = body.newObject("PartDesign::Pad", "Pad005")
pad6.Profile = sketch7
pad6.setExpression("Length", "Params.pad6_length")
pad6.Reversed = True

# Sketch on XY plane
sketch8 = body.newObject("Sketcher::SketchObject", "Sketch007")
sketch8.AttachmentSupport = (doc.getObject("XY_Plane"), [""])
sketch8.MapMode = "FlatFace"
sketch8.AttachmentOffset = App.Placement(App.Vector(0, 0, -0.725), App.Rotation())
add_polygon(sketch8, [(2.48, 8.4), (2.792, 9), (2.48, 9)])  # lines 0-2
add_polygon(sketch8, [(3.104, 8.4), (3.416, 9), (2.792, 9)])  # lines 3-5
add_polygon(sketch8, [(3.728, 8.4), (4.04, 9), (3.416, 9)])  # lines 6-8
add_polygon(sketch8, [(4.352, 8.4), (4.664, 9), (4.04, 9)])  # lines 9-11
add_polygon(sketch8, [(5.288, 9), (4.664, 9), (4.976, 8.4)])  # lines 12-14
add_polygon(sketch8, [(5.6, 9), (5.288, 9), (5.6, 8.4)])  # lines 15-17
sketch8.addConstraint([
    Sketcher.Constraint("Horizontal", 1),
    Sketcher.Constraint("Vertical", 2),
    Sketcher.Constraint("Horizontal", 4),
    Sketcher.Constraint("Horizontal", 7),
    Sketcher.Constraint("Horizontal", 10),
    Sketcher.Constraint("Horizontal", 12),
    Sketcher.Constraint("Horizontal", 15),
    Sketcher.Constraint("Vertical", 17),
    Sketcher.Constraint("Coincident", 4, 2, 0, 2),
    Sketcher.Constraint("Coincident", 7, 2, 3, 2),
    Sketcher.Constraint("Coincident", 10, 2, 6, 2),
    Sketcher.Constraint("Coincident", 12, 2, 9, 2),
    Sketcher.Constraint("Coincident", 15, 2, 14, 2),
    Sketcher.Constraint("Parallel", 0, 3),
    Sketcher.Constraint("Parallel", 3, 6),
    Sketcher.Constraint("Parallel", 5, 8),
    Sketcher.Constraint("Parallel", 6, 9),
    Sketcher.Constraint("Parallel", 8, 11),
    Sketcher.Constraint("Parallel", 11, 13),
    Sketcher.Constraint("Parallel", 9, 14),
    Sketcher.Constraint("Parallel", 13, 16),
    Sketcher.Constraint("Horizontal", 2, 2, 5, 2),
    Sketcher.Constraint("Horizontal", 5, 2, 8, 2),
    Sketcher.Constraint("Horizontal", 8, 2, 11, 2),
    Sketcher.Constraint("Horizontal", 11, 2, 13, 2),
    Sketcher.Constraint("Horizontal", 13, 2, 16, 2),
    Sketcher.Constraint("Equal", 1, 15),
    Sketcher.Constraint("DistanceY", 2, 2, 2, 1, Q("0.6 mm")),
    Sketcher.Constraint("DistanceY", -1, 1, 0, 2, Q("9 mm")),
    Sketcher.Constraint("DistanceX", -1, 1, 16, 2, Q("5.6 mm")),
    Sketcher.Constraint("DistanceX", 1, 2, 1, 1, Q("0.312 mm")),
])
sketch8.setExpression("Constraints[45]", "Params.sketch8_height")
pocket2 = body.newObject("PartDesign::Pocket", "Pocket001")
pocket2.Profile = sketch8
pocket2.setExpression("Length", "Params.pocket2_length")

# Sketch on XZ plane
sketch9 = body.newObject("Sketcher::SketchObject", "Sketch008")
sketch9.AttachmentSupport = (doc.getObject("XZ_Plane"), [""])
sketch9.MapMode = "FlatFace"
add_polygon(sketch9, [(8.2, -2.07), (8.2, -2.53), (9, -2.53), (9, -2.07)])  # lines 0-3
add_polygon(sketch9, [(5.2, -2.07), (5.2, -2.53), (6, -2.53), (6, -2.07)])  # lines 4-7
add_polygon(sketch9, [(2.2, -2.07), (2.2, -2.53), (3, -2.53), (3, -2.07)])  # lines 8-11
sketch9.addConstraint([
    Sketcher.Constraint("Vertical", 0),
    Sketcher.Constraint("Horizontal", 1),
    Sketcher.Constraint("Vertical", 2),
    Sketcher.Constraint("Horizontal", 3),
    Sketcher.Constraint("Vertical", 4),
    Sketcher.Constraint("Horizontal", 5),
    Sketcher.Constraint("Vertical", 6),
    Sketcher.Constraint("Horizontal", 7),
    Sketcher.Constraint("Vertical", 8),
    Sketcher.Constraint("Horizontal", 9),
    Sketcher.Constraint("Vertical", 10),
    Sketcher.Constraint("Horizontal", 11),
    Sketcher.Constraint("Horizontal", 1, 2, 4, 2),
    Sketcher.Constraint("Horizontal", 3, 2, 6, 2),
    Sketcher.Constraint("Horizontal", 5, 2, 8, 2),
    Sketcher.Constraint("Horizontal", 7, 2, 10, 2),
    Sketcher.Constraint("Equal", 3, 5),
    Sketcher.Constraint("Equal", 7, 9),
    Sketcher.Constraint("DistanceX", 1, 1, 1, 2, Q("0.8 mm")),
    Sketcher.Constraint("DistanceX", -1, 1, 1, 2, Q("9 mm")),
    Sketcher.Constraint("DistanceX", -1, 1, 5, 2, Q("6 mm")),
    Sketcher.Constraint("DistanceX", -1, 1, 9, 2, Q("3 mm")),
    Sketcher.Constraint("DistanceY", 0, 2, 0, 1, Q("0.46 mm")),
    Sketcher.Constraint("DistanceY", 0, 2, -1, 1, Q("2.53 mm")),
])
sketch9.setExpression("Constraints[30]", "Params.sketch9_width")
sketch9.setExpression("Constraints[34]", "Params.sketch9_height")
pad7 = body.newObject("PartDesign::Pad", "Pad006")
pad7.Profile = sketch9
pad7.setExpression("Length", "Params.pad7_length")

# Sketch on XY plane
sketch10 = body.newObject("Sketcher::SketchObject", "Sketch009")
sketch10.AttachmentSupport = (doc.getObject("XY_Plane"), [""])
sketch10.MapMode = "FlatFace"
sketch10.AttachmentOffset = App.Placement(App.Vector(0, 0, -2.07), App.Rotation())
sketch10.addGeometry([
    Part.ArcOfCircle(Part.Circle(App.Vector(2.6, -3.3, 0), App.Vector(0, 0, 1), 0.4), math.radians(-180), math.radians(-90)),  # 0
    Part.LineSegment(App.Vector(2.2, -3.3, 0), App.Vector(2.2, -3.7, 0)),  # 1
    Part.LineSegment(App.Vector(2.2, -3.7, 0), App.Vector(2.6, -3.7, 0)),  # 2
    Part.ArcOfCircle(Part.Circle(App.Vector(2.6, -3.3, 0), App.Vector(0, 0, 1), 0.4), math.radians(-90), math.radians(0)),  # 3
    Part.LineSegment(App.Vector(2.6, -3.7, 0), App.Vector(5.6, -3.7, 0)),  # 4
    Part.ArcOfCircle(Part.Circle(App.Vector(5.6, -3.3, 0), App.Vector(0, 0, 1), 0.4), math.radians(-180), math.radians(-90)),  # 5
    Part.LineSegment(App.Vector(5.2, -3.3, 0), App.Vector(3, -3.3, 0)),  # 6
    Part.ArcOfCircle(Part.Circle(App.Vector(5.6, -3.3, 0), App.Vector(0, 0, 1), 0.4), math.radians(-90), math.radians(0)),  # 7
    Part.LineSegment(App.Vector(5.6, -3.7, 0), App.Vector(8.6, -3.7, 0)),  # 8
    Part.ArcOfCircle(Part.Circle(App.Vector(8.6, -3.3, 0), App.Vector(0, 0, 1), 0.4), math.radians(-180), math.radians(-90)),  # 9
    Part.LineSegment(App.Vector(8.2, -3.3, 0), App.Vector(6, -3.3, 0)),  # 10
    Part.ArcOfCircle(Part.Circle(App.Vector(8.6, -3.3, 0), App.Vector(0, 0, 1), 0.4), math.radians(-90), math.radians(0)),  # 11
    Part.LineSegment(App.Vector(8.6, -3.7, 0), App.Vector(9, -3.7, 0)),  # 12
    Part.LineSegment(App.Vector(9, -3.7, 0), App.Vector(9, -3.3, 0)),  # 13
], False)
sketch10.addConstraint([
    Sketcher.Constraint("Tangent", 0, 1, 1, 1),
    Sketcher.Constraint("Coincident", 1, 2, 2, 1),
    Sketcher.Constraint("Tangent", 2, 2, 0, 2),
    Sketcher.Constraint("Tangent", 3, 1, 4, 1),
    Sketcher.Constraint("Tangent", 4, 2, 5, 2),
    Sketcher.Constraint("Coincident", 5, 1, 6, 1),
    Sketcher.Constraint("Coincident", 6, 2, 3, 2),
    Sketcher.Constraint("Tangent", 7, 1, 8, 1),
    Sketcher.Constraint("Tangent", 8, 2, 9, 2),
    Sketcher.Constraint("Coincident", 9, 1, 10, 1),
    Sketcher.Constraint("Coincident", 10, 2, 7, 2),
    Sketcher.Constraint("Tangent", 11, 1, 12, 1),
    Sketcher.Constraint("Coincident", 12, 2, 13, 1),
    Sketcher.Constraint("Tangent", 13, 2, 11, 2),
    Sketcher.Constraint("Vertical", 1),
    Sketcher.Constraint("Horizontal", 2),
    Sketcher.Constraint("Horizontal", 4),
    Sketcher.Constraint("Horizontal", 6),
    Sketcher.Constraint("Horizontal", 8),
    Sketcher.Constraint("Horizontal", 10),
    Sketcher.Constraint("Horizontal", 12),
    Sketcher.Constraint("Vertical", 13),
    Sketcher.Constraint("Coincident", 3, 3, 0, 3),
    Sketcher.Constraint("Coincident", 7, 3, 5, 3),
    Sketcher.Constraint("Coincident", 11, 3, 9, 3),
    Sketcher.Constraint("Equal", 0, 3),
    Sketcher.Constraint("Equal", 3, 5),
    Sketcher.Constraint("Equal", 5, 7),
    Sketcher.Constraint("Equal", 7, 9),
    Sketcher.Constraint("Equal", 9, 11),
    Sketcher.Constraint("Horizontal", 0, 1, 5, 1),
    Sketcher.Constraint("Horizontal", 6, 2, 9, 1),
    Sketcher.Constraint("Equal", 4, 8),
    Sketcher.Constraint("Radius", 0, Q("0.4 mm")),
    Sketcher.Constraint("DistanceX", 4, 1, 4, 2, Q("3 mm")),
    Sketcher.Constraint("DistanceX", -1, 1, 6, 2, Q("3 mm")),
    Sketcher.Constraint("DistanceY", 0, 3, -1, 1, Q("3.3 mm")),
])
sketch10.setExpression("Constraints[33]", "Params.sketch10_radius")
sketch10.setExpression("Constraints[34]", "Params.sketch10_width")
pocket3 = body.newObject("PartDesign::Pocket", "Pocket002")
pocket3.Profile = sketch10
pocket3.setExpression("Length", "Params.pocket3_length")
doc.recompute()

fillet = body.newObject("PartDesign::Fillet", "Fillet")
fillet.Base = (pocket3, edges_at(pocket3, [(-0.45, 5, -2.3)]))
fillet.setExpression("Radius", "Params.fillet_radius")
doc.recompute()

fillet2 = body.newObject("PartDesign::Fillet", "Fillet001")
fillet2.Base = (fillet, edges_at(fillet, [(5.6, 5, 0.45)]))
fillet2.setExpression("Radius", "Params.fillet2_radius")
doc.recompute()

fillet3 = body.newObject("PartDesign::Fillet", "Fillet002")
fillet3.Base = (fillet2, edges_at(fillet2, [(11.65, 5, -2.3)]))
fillet3.setExpression("Radius", "Params.fillet3_radius")
doc.recompute()

fillet4 = body.newObject("PartDesign::Fillet", "Fillet003")
fillet4.Base = (fillet3, edges_at(fillet3, [(5.6, 5, -5.05)]))
fillet4.setExpression("Radius", "Params.fillet4_radius")

doc.recompute()
